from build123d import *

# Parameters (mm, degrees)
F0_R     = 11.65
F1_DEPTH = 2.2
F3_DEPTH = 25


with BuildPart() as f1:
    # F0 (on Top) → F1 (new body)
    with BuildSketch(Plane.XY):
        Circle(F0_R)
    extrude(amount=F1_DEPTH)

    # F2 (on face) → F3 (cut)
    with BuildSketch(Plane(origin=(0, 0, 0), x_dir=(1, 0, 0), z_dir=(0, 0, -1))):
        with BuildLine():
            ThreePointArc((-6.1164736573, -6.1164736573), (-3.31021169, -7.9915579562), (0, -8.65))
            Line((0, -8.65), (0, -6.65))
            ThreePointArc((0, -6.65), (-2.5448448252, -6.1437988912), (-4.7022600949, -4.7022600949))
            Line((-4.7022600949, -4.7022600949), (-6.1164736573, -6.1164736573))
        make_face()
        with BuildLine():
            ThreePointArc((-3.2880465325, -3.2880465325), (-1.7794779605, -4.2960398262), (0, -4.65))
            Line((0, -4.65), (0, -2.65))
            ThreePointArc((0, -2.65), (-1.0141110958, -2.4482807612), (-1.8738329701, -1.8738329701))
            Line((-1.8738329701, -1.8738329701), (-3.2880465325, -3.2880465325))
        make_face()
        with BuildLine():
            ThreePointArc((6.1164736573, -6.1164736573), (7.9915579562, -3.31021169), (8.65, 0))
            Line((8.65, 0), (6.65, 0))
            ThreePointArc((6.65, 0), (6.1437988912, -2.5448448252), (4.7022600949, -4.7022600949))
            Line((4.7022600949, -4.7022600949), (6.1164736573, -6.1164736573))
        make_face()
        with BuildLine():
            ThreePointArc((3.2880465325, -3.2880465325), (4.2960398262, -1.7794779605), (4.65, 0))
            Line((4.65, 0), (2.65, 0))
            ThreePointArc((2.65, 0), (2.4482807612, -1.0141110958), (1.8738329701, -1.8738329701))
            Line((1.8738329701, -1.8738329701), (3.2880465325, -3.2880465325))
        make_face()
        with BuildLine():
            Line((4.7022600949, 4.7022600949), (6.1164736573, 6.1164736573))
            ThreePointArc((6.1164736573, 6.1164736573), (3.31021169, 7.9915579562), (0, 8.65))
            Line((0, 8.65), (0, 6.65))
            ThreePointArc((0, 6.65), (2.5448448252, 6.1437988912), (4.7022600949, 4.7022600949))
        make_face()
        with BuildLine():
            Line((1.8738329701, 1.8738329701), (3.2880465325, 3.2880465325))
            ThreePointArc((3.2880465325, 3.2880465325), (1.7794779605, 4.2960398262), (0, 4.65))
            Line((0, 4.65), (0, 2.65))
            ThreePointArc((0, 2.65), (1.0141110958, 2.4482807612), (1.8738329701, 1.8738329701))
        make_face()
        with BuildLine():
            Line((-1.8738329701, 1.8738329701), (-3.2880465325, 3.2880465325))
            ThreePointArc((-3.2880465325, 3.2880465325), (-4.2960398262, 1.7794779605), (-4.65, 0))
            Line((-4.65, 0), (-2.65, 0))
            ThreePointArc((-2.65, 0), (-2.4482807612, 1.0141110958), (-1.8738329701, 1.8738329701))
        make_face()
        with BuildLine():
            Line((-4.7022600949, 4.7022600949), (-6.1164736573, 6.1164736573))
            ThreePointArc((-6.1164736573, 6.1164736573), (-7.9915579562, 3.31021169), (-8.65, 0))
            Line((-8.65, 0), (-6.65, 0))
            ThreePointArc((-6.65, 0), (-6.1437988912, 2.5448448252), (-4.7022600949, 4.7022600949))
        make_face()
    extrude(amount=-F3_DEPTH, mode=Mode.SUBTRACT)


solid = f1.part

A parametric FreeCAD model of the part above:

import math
import FreeCAD as App
import Part
import Sketcher
from FreeCAD import Vector
Q = App.Units.Quantity

doc = App.newDocument("Part")
body = doc.addObject("PartDesign::Body", "Body")

sketch1 = body.newObject("Sketcher::SketchObject", "Sketch")
sketch1.AttachmentSupport = (doc.getObject("XY_Plane"), [""])
sketch1.MapMode = "FlatFace"
sketch1.addGeometry(Part.Circle(Vector(0, 0, 0), Vector(0, 0, 1), 11.65), False)
sketch1.addConstraint([
    Sketcher.Constraint("Coincident", 0, 3, -1, 1),
    Sketcher.Constraint("Diameter", 0, Q("23.3 mm")),
])
pad1 = body.newObject("PartDesign::Pad", "Pad")
pad1.Profile = sketch1
pad1.Length = 2.2

sketch2 = body.newObject("Sketcher::SketchObject", "Sketch001")
sketch2.AttachmentSupport = (doc.getObject("XY_Plane"), [""])
sketch2.MapMode = "FlatFace"
sketch2.addGeometry([
    Part.ArcOfCircle(Part.Circle(Vector(0, 0, 0), Vector(0, 0, 1), 8.65), math.radians(90), math.radians(135)),
    Part.LineSegment(Vector(0, 8.65, 0), Vector(0, 6.65, 0)),
    Part.ArcOfCircle(Part.Circle(Vector(0, 0, 0), Vector(0, 0, 1), 6.65), math.radians(90), math.radians(135)),
    Part.LineSegment(Vector(-4.70226, 4.70226, 0), Vector(-6.116474, 6.116474, 0)),
    Part.ArcOfCircle(Part.Circle(Vector(0, 0, 0), Vector(0, 0, 1), 4.65), math.radians(90), math.radians(135)),
    Part.LineSegment(Vector(0, 4.65, 0), Vector(0, 2.65, 0)),
    Part.ArcOfCircle(Part.Circle(Vector(0, 0, 0), Vector(0, 0, 1), 2.65), math.radians(90), math.radians(135)),
    Part.LineSegment(Vector(-1.873833, 1.873833, 0), Vector(-3.288047, 3.288047, 0)),
    Part.ArcOfCircle(Part.Circle(Vector(0, 0, 0), Vector(0, 0, 1), 8.65), math.radians(0), math.radians(45)),
    Part.LineSegment(Vector(8.65, 0, 0), Vector(6.65, 0, 0)),
    Part.ArcOfCircle(Part.Circle(Vector(0, 0, 0), Vector(0, 0, 1), 6.65), math.radians(0), math.radians(45)),
    Part.LineSegment(Vector(4.70226, 4.70226, 0), Vector(6.116474, 6.116474, 0)),
    Part.ArcOfCircle(Part.Circle(Vector(0, 0, 0), Vector(0, 0, 1), 4.65), math.radians(0), math.radians(45)),
    Part.LineSegment(Vector(4.65, 0, 0), Vector(2.65, 0, 0)),
    Part.ArcOfCircle(Part.Circle(Vector(0, 0, 0), Vector(0, 0, 1), 2.65), math.radians(0), math.radians(45)),
    Part.LineSegment(Vector(1.873833, 1.873833, 0), Vector(3.288047, 3.288047, 0)),
    Part.LineSegment(Vector(4.70226, -4.70226, 0), Vector(6.116474, -6.116474, 0)),
    Part.ArcOfCircle(Part.Circle(Vector(0, 0, 0), Vector(0, 0, 1), 8.65), math.radians(-90), math.radians(-45)),
    Part.LineSegment(Vector(0, -8.65, 0), Vector(0, -6.65, 0)),
    Part.ArcOfCircle(Part.Circle(Vector(0, 0, 0), Vector(0, 0, 1), 6.65), math.radians(-90), math.radians(-45)),
    Part.LineSegment(Vector(1.873833, -1.873833, 0), Vector(3.288047, -3.288047, 0)),
    Part.ArcOfCircle(Part.Circle(Vector(0, 0, 0), Vector(0, 0, 1), 4.65), math.radians(-90), math.radians(-45)),
    Part.LineSegment(Vector(0, -4.65, 0), Vector(0, -2.65, 0)),
    Part.ArcOfCircle(Part.Circle(Vector(0, 0, 0), Vector(0, 0, 1), 2.65), math.radians(-90), math.radians(-45)),
    Part.LineSegment(Vector(-1.873833, -1.873833, 0), Vector(-3.288047, -3.288047, 0)),
    Part.ArcOfCircle(Part.Circle(Vector(0, 0, 0), Vector(0, 0, 1), 4.65), math.radians(180), math.radians(225)),
    Part.LineSegment(Vector(-4.65, 0, 0), Vector(-2.65, 0, 0)),
    Part.ArcOfCircle(Part.Circle(Vector(0, 0, 0), Vector(0, 0, 1), 2.65), math.radians(180), math.radians(225)),
    Part.LineSegment(Vector(-4.70226, -4.70226, 0), Vector(-6.116474, -6.116474, 0)),
    Part.ArcOfCircle(Part.Circle(Vector(0, 0, 0), Vector(0, 0, 1), 8.65), math.radians(180), math.radians(225)),
    Part.LineSegment(Vector(-8.65, 0, 0), Vector(-6.65, 0, 0)),
    Part.ArcOfCircle(Part.Circle(Vector(0, 0, 0), Vector(0, 0, 1), 6.65), math.radians(180), math.radians(225)),
], False)
sketch2.addConstraint([
    Sketcher.Constraint("Coincident", 0, 1, 1, 1),
    Sketcher.Constraint("Coincident", 1, 2, 2, 1),
    Sketcher.Constraint("Coincident", 2, 2, 3, 1),
    Sketcher.Constraint("Coincident", 3, 2, 0, 2),
    Sketcher.Constraint("Coincident", 4, 1, 5, 1),
    Sketcher.Constraint("Coincident", 5, 2, 6, 1),
    Sketcher.Constraint("Coincident", 6, 2, 7, 1),
    Sketcher.Constraint("Coincident", 7, 2, 4, 2),
    Sketcher.Constraint("Coincident", 8, 1, 9, 1),
    Sketcher.Constraint("Coincident", 9, 2, 10, 1),
    Sketcher.Constraint("Coincident", 10, 2, 11, 1),
    Sketcher.Constraint("Coincident", 11, 2, 8, 2),
    Sketcher.Constraint("Coincident", 12, 1, 13, 1),
    Sketcher.Constraint("Coincident", 13, 2, 14, 1),
    Sketcher.Constraint("Coincident", 14, 2, 15, 1),
    Sketcher.Constraint("Coincident", 15, 2, 12, 2),
    Sketcher.Constraint("Coincident", 16, 2, 17, 2),
    Sketcher.Constraint("Coincident", 17, 1, 18, 1),
    Sketcher.Constraint("Coincident", 18, 2, 19, 1),
    Sketcher.Constraint("Coincident", 19, 2, 16, 1),
    Sketcher.Constraint("Coincident", 20, 2, 21, 2),
    Sketcher.Constraint("Coincident", 21, 1, 22, 1),
    Sketcher.Constraint("Coincident", 22, 2, 23, 1),
    Sketcher.Constraint("Coincident", 23, 2, 20, 1),
    Sketcher.Constraint("Coincident", 24, 2, 25, 2),
    Sketcher.Constraint("Coincident", 25, 1, 26, 1),
    Sketcher.Constraint("Coincident", 26, 2, 27, 1),
    Sketcher.Constraint("Coincident", 27, 2, 24, 1),
    Sketcher.Constraint("Coincident", 28, 2, 29, 2),
    Sketcher.Constraint("Coincident", 29, 1, 30, 1),
    Sketcher.Constraint("Coincident", 30, 2, 31, 1),
    Sketcher.Constraint("Coincident", 31, 2, 28, 1),
    Sketcher.Constraint("Vertical", 1),
    Sketcher.Constraint("Vertical", 5),
    Sketcher.Constraint("Horizontal", 9),
    Sketcher.Constraint("Horizontal", 13),
    Sketcher.Constraint("Vertical", 18),
    Sketcher.Constraint("Vertical", 22),
    Sketcher.Constraint("Horizontal", 26),
    Sketcher.Constraint("Horizontal", 30),
    Sketcher.Constraint("Coincident", 0, 3, -1, 1),
    Sketcher.Constraint("Coincident", 2, 3, -1, 1),
    Sketcher.Constraint("Coincident", 4, 3, -1, 1),
    Sketcher.Constraint("Coincident", 6, 3, -1, 1),
    Sketcher.Constraint("Coincident", 8, 3, -1, 1),
    Sketcher.Constraint("Coincident", 10, 3, -1, 1),
    Sketcher.Constraint("Coincident", 12, 3, -1, 1),
    Sketcher.Constraint("Coincident", 14, 3, -1, 1),
    Sketcher.Constraint("Coincident", 17, 3, -1, 1),
    Sketcher.Constraint("Coincident", 19, 3, -1, 1),
    Sketcher.Constraint("Coincident", 21, 3, -1, 1),
    Sketcher.Constraint("Coincident", 23, 3, -1, 1),
    Sketcher.Constraint("Coincident", 25, 3, -1, 1),
    Sketcher.Constraint("Coincident", 27, 3, -1, 1),
    Sketcher.Constraint("Coincident", 29, 3, -1, 1),
    Sketcher.Constraint("Coincident", 31, 3, -1, 1),
    Sketcher.Constraint("Equal", 0, 8),
    Sketcher.Constraint("Equal", 2, 10),
    Sketcher.Constraint("Equal", 4, 12),
    Sketcher.Constraint("Equal", 6, 14),
    Sketcher.Constraint("Equal", 8, 17),
    Sketcher.Constraint("Equal", 10, 19),
    Sketcher.Constraint("Equal", 12, 21),
    Sketcher.Constraint("Equal", 14, 23),
    Sketcher.Constraint("Equal", 21, 25),
    Sketcher.Constraint("Equal", 23, 27),
    Sketcher.Constraint("Equal", 17, 29),
    Sketcher.Constraint("Equal", 19, 31),
    Sketcher.Constraint("PointOnObject", 0, 1, -2),
    Sketcher.Constraint("PointOnObject", 4, 1, -2),
    Sketcher.Constraint("PointOnObject", 8, 1, -1),
    Sketcher.Constraint("PointOnObject", 12, 1, -1),
    Sketcher.Constraint("PointOnObject", 17, 1, -2),
    Sketcher.Constraint("PointOnObject", 21, 1, -2),
    Sketcher.Constraint("PointOnObject", 25, 1, -1),
    Sketcher.Constraint("PointOnObject", 29, 1, -1),
    Sketcher.Constraint("Parallel", 3, 7),
    Sketcher.Constraint("Perpendicular", 7, 11),
    Sketcher.Constraint("Parallel", 11, 15),
    Sketcher.Constraint("Perpendicular", 15, 16),
    Sketcher.Constraint("Parallel", 16, 20),
    Sketcher.Constraint("Perpendicular", 20, 24),
    Sketcher.Constraint("Parallel", 24, 28),
    Sketcher.Constraint("Horizontal", 2, 2, 10, 2),
    Sketcher.Constraint("Horizontal", 3, 2, 11, 2),
    Sketcher.Constraint("Horizontal", 6, 2, 14, 2),
    Sketcher.Constraint("Horizontal", 20, 2, 24, 2),
    Sketcher.Constraint("Horizontal", 16, 2, 28, 2),
    Sketcher.Constraint("Vertical", 11, 2, 16, 2),
    Sketcher.Constraint("Vertical", 15, 2, 20, 2),
    Sketcher.Constraint("Equal", 9, 13),
    Sketcher.Constraint("DistanceX", 9, 2, 9, 1, Q("2 mm")),
    Sketcher.Constraint("Radius", 0, Q("8.65 mm")),
    Sketcher.Constraint("Radius", 4, Q("4.65 mm")),
    Sketcher.Constraint("DistanceX", 2, 2, -1, 1, Q("4.70226 mm")),
    Sketcher.Constraint("DistanceX", 28, 2, 27, 2, Q("4.242641 mm")),
])
pocket1 = body.newObject("PartDesign::Pocket", "Pocket")
pocket1.Profile = sketch2
pocket1.Length = 25
pocket1.Reversed = True

doc.recompute()
